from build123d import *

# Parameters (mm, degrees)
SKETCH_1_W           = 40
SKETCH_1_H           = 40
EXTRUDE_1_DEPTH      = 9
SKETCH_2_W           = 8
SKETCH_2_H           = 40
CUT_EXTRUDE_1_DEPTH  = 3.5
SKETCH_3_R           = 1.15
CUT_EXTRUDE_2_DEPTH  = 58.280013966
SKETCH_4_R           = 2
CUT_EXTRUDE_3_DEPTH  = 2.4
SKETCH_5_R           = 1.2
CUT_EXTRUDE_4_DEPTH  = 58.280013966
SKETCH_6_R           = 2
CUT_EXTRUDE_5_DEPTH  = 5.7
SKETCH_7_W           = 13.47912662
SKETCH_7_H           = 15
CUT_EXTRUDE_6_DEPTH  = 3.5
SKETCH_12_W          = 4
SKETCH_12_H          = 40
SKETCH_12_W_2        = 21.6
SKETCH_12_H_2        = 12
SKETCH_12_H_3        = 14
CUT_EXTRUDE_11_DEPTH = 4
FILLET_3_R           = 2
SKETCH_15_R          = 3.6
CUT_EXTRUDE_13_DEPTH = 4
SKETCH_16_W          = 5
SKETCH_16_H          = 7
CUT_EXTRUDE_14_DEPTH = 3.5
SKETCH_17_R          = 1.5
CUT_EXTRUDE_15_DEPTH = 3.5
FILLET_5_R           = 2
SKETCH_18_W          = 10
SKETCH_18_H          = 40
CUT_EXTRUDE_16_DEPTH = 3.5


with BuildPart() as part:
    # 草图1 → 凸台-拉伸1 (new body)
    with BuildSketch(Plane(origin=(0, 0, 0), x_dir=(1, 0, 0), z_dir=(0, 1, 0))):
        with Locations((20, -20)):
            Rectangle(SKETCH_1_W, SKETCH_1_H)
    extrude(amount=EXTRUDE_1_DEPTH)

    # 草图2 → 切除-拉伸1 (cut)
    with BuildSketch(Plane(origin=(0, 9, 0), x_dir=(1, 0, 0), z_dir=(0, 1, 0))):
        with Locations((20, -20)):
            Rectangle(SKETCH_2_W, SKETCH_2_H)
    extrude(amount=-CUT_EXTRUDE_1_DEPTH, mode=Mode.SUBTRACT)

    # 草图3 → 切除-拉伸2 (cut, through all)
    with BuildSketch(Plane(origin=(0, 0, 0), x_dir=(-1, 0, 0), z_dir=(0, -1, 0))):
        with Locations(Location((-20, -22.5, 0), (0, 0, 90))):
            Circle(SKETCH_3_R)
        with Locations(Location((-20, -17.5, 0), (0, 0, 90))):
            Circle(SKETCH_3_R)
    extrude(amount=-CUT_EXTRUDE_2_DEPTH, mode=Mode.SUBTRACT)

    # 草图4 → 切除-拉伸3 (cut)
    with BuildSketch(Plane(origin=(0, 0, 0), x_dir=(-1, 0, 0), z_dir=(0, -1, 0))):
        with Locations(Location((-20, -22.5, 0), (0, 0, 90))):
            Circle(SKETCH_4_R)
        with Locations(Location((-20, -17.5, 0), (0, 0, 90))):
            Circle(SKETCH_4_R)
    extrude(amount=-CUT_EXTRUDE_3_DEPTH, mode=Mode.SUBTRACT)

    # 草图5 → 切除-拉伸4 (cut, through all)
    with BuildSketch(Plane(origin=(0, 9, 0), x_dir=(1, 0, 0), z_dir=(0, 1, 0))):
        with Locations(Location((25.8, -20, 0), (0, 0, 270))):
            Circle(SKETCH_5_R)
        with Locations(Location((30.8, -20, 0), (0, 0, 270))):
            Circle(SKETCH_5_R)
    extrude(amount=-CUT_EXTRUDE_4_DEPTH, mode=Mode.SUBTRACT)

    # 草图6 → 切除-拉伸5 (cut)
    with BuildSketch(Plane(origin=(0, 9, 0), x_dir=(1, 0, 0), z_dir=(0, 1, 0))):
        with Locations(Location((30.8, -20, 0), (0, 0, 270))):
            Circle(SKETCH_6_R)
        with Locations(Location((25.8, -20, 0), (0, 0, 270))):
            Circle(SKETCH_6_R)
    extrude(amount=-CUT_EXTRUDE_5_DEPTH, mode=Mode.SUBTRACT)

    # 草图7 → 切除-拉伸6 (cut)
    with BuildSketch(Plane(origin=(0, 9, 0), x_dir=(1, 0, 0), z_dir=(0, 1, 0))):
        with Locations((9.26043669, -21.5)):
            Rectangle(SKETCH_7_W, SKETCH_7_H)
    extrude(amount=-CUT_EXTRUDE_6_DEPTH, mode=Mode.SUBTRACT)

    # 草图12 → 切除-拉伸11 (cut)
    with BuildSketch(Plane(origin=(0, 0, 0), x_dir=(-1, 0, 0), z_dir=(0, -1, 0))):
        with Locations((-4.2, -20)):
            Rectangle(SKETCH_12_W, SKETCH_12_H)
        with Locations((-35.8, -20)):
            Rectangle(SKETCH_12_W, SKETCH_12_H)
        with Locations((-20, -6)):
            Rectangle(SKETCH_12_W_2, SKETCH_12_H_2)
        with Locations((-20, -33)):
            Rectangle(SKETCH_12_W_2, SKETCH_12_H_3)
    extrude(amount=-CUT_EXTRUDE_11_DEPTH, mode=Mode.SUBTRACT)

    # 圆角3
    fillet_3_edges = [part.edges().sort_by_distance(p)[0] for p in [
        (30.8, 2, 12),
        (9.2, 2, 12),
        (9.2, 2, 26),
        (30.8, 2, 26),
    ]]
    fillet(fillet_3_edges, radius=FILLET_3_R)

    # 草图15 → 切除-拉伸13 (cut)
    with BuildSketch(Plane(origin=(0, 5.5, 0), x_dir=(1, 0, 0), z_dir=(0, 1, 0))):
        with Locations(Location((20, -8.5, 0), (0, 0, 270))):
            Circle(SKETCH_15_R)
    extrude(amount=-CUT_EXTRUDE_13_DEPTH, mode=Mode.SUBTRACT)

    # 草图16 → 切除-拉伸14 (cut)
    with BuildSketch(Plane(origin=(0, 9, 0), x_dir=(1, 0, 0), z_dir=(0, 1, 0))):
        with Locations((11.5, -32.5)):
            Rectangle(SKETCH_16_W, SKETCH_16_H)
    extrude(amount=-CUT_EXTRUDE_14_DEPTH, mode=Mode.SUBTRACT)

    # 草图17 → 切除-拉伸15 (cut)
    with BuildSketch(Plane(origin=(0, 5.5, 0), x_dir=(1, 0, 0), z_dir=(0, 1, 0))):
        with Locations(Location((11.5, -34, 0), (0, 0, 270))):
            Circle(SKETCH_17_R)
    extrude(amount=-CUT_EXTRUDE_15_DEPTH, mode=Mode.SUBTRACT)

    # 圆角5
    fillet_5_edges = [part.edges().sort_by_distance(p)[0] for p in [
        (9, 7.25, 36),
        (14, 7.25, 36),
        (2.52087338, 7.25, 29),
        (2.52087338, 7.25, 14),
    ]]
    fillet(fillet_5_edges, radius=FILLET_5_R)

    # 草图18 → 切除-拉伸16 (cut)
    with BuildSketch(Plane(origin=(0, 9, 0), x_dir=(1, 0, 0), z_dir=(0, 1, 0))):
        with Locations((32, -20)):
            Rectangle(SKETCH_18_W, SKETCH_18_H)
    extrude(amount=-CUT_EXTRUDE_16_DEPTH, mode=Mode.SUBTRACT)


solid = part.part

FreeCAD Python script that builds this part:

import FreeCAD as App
import Part
import Sketcher
Q = App.Units.Quantity


def edges_at(feature, points):
    """Names of the edges that pass closest to the given points."""
    edges = feature.Shape.Edges
    near = lambda p: min(range(len(edges)), key=lambda i: edges[i].distToShape(Part.Vertex(*p))[0])
    return sorted({f"Edge{near(p) + 1}" for p in points})


def add_polygon(sketch, points):
    """Adds a closed chain of lines whose ends are joined by coincident constraints."""
    first, n = sketch.GeometryCount, len(points)
    for a, b in zip(points, points[1:] + points[:1]):
        sketch.addGeometry(Part.LineSegment(App.Vector(*a, 0), App.Vector(*b, 0)), False)
    for i in range(n):
        sketch.addConstraint(Sketcher.Constraint("Coincident", first + i, 2, first + (i + 1) % n, 1))

doc = App.newDocument("Part")
body = doc.addObject("PartDesign::Body", "Body")

# Sketch on XZ plane
sketch1 = doc.addObject("Sketcher::SketchObject", "Sketch")
body.addObject(sketch1)
sketch1.AttachmentSupport = (doc.XZ_Plane, [""])
sketch1.MapMode = "FlatFace"
add_polygon(sketch1, [(0, 0), (0, 40), (40, 40), (40, 0)])  # lines 0-3
sketch1.addConstraint(Sketcher.Constraint("Vertical", 0))
sketch1.addConstraint(Sketcher.Constraint("Horizontal", 1))
sketch1.addConstraint(Sketcher.Constraint("Vertical", 2))
sketch1.addConstraint(Sketcher.Constraint("Horizontal", 3))
sketch1.addConstraint(Sketcher.Constraint("Coincident", 3, 2, -1, 1))
sketch1.addConstraint(Sketcher.Constraint("Equal", 3, 0))
sketch1.addConstraint(Sketcher.Constraint("DistanceX", 1, 1, 1, 2, Q("40 mm")))
pad1 = doc.addObject("PartDesign::Pad", "Pad")
body.addObject(pad1)
pad1.Profile = sketch1
pad1.Length = 9
pad1.Reversed = True

# Sketch on XZ plane
sketch2 = doc.addObject("Sketcher::SketchObject", "Sketch001")
body.addObject(sketch2)
sketch2.AttachmentSupport = (doc.XZ_Plane, [""])
sketch2.MapMode = "FlatFace"
sketch2.AttachmentOffset = App.Placement(App.Vector(0, 0, -9), App.Rotation())
add_polygon(sketch2, [(16, 0), (16, 40), (24, 40), (24, 0)])  # lines 0-3
sketch2.addConstraint(Sketcher.Constraint("Vertical", 0))
sketch2.addConstraint(Sketcher.Constraint("Horizontal", 1))
sketch2.addConstraint(Sketcher.Constraint("Vertical", 2))
sketch2.addConstraint(Sketcher.Constraint("Horizontal", 3))
sketch2.addConstraint(Sketcher.Constraint("PointOnObject", 2, 2, -1))
sketch2.addConstraint(Sketcher.Constraint("DistanceX", 1, 1, 1, 2, Q("8 mm")))
sketch2.addConstraint(Sketcher.Constraint("DistanceY", 0, 1, 0, 2, Q("40 mm")))
sketch2.addConstraint(Sketcher.Constraint("DistanceX", -1, 1, 0, 2, Q("16 mm")))
pocket1 = doc.addObject("PartDesign::Pocket", "Pocket")
body.addObject(pocket1)
pocket1.Profile = sketch2
pocket1.Length = 3.5
pocket1.Reversed = True

# Sketch on XZ plane
sketch3 = doc.addObject("Sketcher::SketchObject", "Sketch002")
body.addObject(sketch3)
sketch3.AttachmentSupport = (doc.XZ_Plane, [""])
sketch3.MapMode = "FlatFace"
sketch3.addGeometry(Part.Circle(App.Vector(20, 22.5, 0), App.Vector(0, 0, 1), 1.1), False)
sketch3.addGeometry(Part.Circle(App.Vector(20, 17.5, 0), App.Vector(0, 0, 1), 1.1), False)
sketch3.addConstraint(Sketcher.Constraint("Equal", 0, 1))
sketch3.addConstraint(Sketcher.Constraint("Vertical", 0, 3, 1, 3))
sketch3.addConstraint(Sketcher.Constraint("Diameter", 0, Q("2.3 mm")))
sketch3.addConstraint(Sketcher.Constraint("DistanceX", -1, 1, 0, 3, Q("20 mm")))
sketch3.addConstraint(Sketcher.Constraint("DistanceY", 1, 3, 0, 3, Q("5 mm")))
sketch3.addConstraint(Sketcher.Constraint("DistanceY", -1, 1, 0, 3, Q("22.5 mm")))
pocket2 = doc.addObject("PartDesign::Pocket", "Pocket001")
body.addObject(pocket2)
pocket2.Profile = sketch3
pocket2.Type = "ThroughAll"

# Sketch on XZ plane
sketch4 = doc.addObject("Sketcher::SketchObject", "Sketch003")
body.addObject(sketch4)
sketch4.AttachmentSupport = (doc.XZ_Plane, [""])
sketch4.MapMode = "FlatFace"
sketch4.addGeometry(Part.Circle(App.Vector(20, 22.5, 0), App.Vector(0, 0, 1), 2), False)
sketch4.addGeometry(Part.Circle(App.Vector(20, 17.5, 0), App.Vector(0, 0, 1), 2), False)
sketch4.addConstraint(Sketcher.Constraint("Equal", 0, 1))
sketch4.addConstraint(Sketcher.Constraint("Vertical", 0, 3, 1, 3))
sketch4.addConstraint(Sketcher.Constraint("Diameter", 0, Q("4 mm")))
sketch4.addConstraint(Sketcher.Constraint("DistanceX", -1, 1, 0, 3, Q("20 mm")))
sketch4.addConstraint(Sketcher.Constraint("DistanceY", 1, 3, 0, 3, Q("5 mm")))
sketch4.addConstraint(Sketcher.Constraint("DistanceY", -1, 1, 0, 3, Q("22.5 mm")))
pocket3 = doc.addObject("PartDesign::Pocket", "Pocket002")
body.addObject(pocket3)
pocket3.Profile = sketch4
pocket3.Length = 2.4

# Sketch on XZ plane
sketch5 = doc.addObject("Sketcher::SketchObject", "Sketch004")
body.addObject(sketch5)
sketch5.AttachmentSupport = (doc.XZ_Plane, [""])
sketch5.MapMode = "FlatFace"
sketch5.AttachmentOffset = App.Placement(App.Vector(0, 0, -9), App.Rotation())
sketch5.addGeometry(Part.Circle(App.Vector(25.8, 20, 0), App.Vector(0, 0, 1), 1.2), False)
sketch5.addGeometry(Part.Circle(App.Vector(30.8, 20, 0), App.Vector(0, 0, 1), 1.2), False)
sketch5.addConstraint(Sketcher.Constraint("Equal", 0, 1))
sketch5.addConstraint(Sketcher.Constraint("Horizontal", 0, 3, 1, 3))
sketch5.addConstraint(Sketcher.Constraint("Diameter", 0, Q("2.4 mm")))
sketch5.addConstraint(Sketcher.Constraint("DistanceY", -1, 1, 0, 3, Q("20 mm")))
sketch5.addConstraint(Sketcher.Constraint("DistanceX", 0, 3, 1, 3, Q("5 mm")))
sketch5.addConstraint(Sketcher.Constraint("DistanceX", -1, 1, 0, 3, Q("25.8 mm")))
pocket4 = doc.addObject("PartDesign::Pocket", "Pocket003")
body.addObject(pocket4)
pocket4.Profile = sketch5
pocket4.Type = "ThroughAll"
pocket4.Reversed = True

# Sketch on XZ plane
sketch6 = doc.addObject("Sketcher::SketchObject", "Sketch005")
body.addObject(sketch6)
sketch6.AttachmentSupport = (doc.XZ_Plane, [""])
sketch6.MapMode = "FlatFace"
sketch6.AttachmentOffset = App.Placement(App.Vector(0, 0, -9), App.Rotation())
sketch6.addGeometry(Part.Circle(App.Vector(30.8, 20, 0), App.Vector(0, 0, 1), 2), False)
sketch6.addGeometry(Part.Circle(App.Vector(25.8, 20, 0), App.Vector(0, 0, 1), 2), False)
sketch6.addConstraint(Sketcher.Constraint("Equal", 0, 1))
sketch6.addConstraint(Sketcher.Constraint("Horizontal", 0, 3, 1, 3))
sketch6.addConstraint(Sketcher.Constraint("Diameter", 0, Q("4 mm")))
sketch6.addConstraint(Sketcher.Constraint("DistanceY", -1, 1, 0, 3, Q("20 mm")))
sketch6.addConstraint(Sketcher.Constraint("DistanceX", 1, 3, 0, 3, Q("5 mm")))
sketch6.addConstraint(Sketcher.Constraint("DistanceX", -1, 1, 0, 3, Q("30.8 mm")))
pocket5 = doc.addObject("PartDesign::Pocket", "Pocket004")
body.addObject(pocket5)
pocket5.Profile = sketch6
pocket5.Length = 5.7
pocket5.Reversed = True

# Sketch on XZ plane
sketch7 = doc.addObject("Sketcher::SketchObject", "Sketch006")
body.addObject(sketch7)
sketch7.AttachmentSupport = (doc.XZ_Plane, [""])
sketch7.MapMode = "FlatFace"
sketch7.AttachmentOffset = App.Placement(App.Vector(0, 0, -9), App.Rotation())
add_polygon(sketch7, [(3, 14), (3, 29), (16, 29), (16, 14)])  # lines 0-3
sketch7.addConstraint(Sketcher.Constraint("Vertical", 0))
sketch7.addConstraint(Sketcher.Constraint("Horizontal", 1))
sketch7.addConstraint(Sketcher.Constraint("Vertical", 2))
sketch7.addConstraint(Sketcher.Constraint("Horizontal", 3))
sketch7.addConstraint(Sketcher.Constraint("DistanceY", 0, 1, 0, 2, Q("15 mm")))
sketch7.addConstraint(Sketcher.Constraint("DistanceY", -1, 1, 0, 2, Q("29 mm")))
sketch7.addConstraint(Sketcher.Constraint("DistanceX", -1, 1, 1, 2, Q("16 mm")))
sketch7.addConstraint(Sketcher.Constraint("DistanceX", 1, 1, 1, 2, Q("13.479127 mm")))
pocket6 = doc.addObject("PartDesign::Pocket", "Pocket005")
body.addObject(pocket6)
pocket6.Profile = sketch7
pocket6.Length = 3.5
pocket6.Reversed = True

# Sketch on XZ plane
sketch8 = doc.addObject("Sketcher::SketchObject", "Sketch007")
body.addObject(sketch8)
sketch8.AttachmentSupport = (doc.XZ_Plane, [""])
sketch8.MapMode = "FlatFace"
add_polygon(sketch8, [(6.2, 0), (6.2, 40), (2.2, 40), (2.2, 0)])  # lines 0-3
add_polygon(sketch8, [(37.8, 0), (37.8, 40), (33.8, 40), (33.8, 0)])  # lines 4-7
add_polygon(sketch8, [(30.8, 0), (30.8, 12), (9.2, 12), (9.2, 0)])  # lines 8-11
add_polygon(sketch8, [(30.8, 26), (30.8, 40), (9.2, 40), (9.2, 26)])  # lines 12-15
sketch8.addConstraint(Sketcher.Constraint("Vertical", 0))
sketch8.addConstraint(Sketcher.Constraint("Horizontal", 1))
sketch8.addConstraint(Sketcher.Constraint("Vertical", 2))
sketch8.addConstraint(Sketcher.Constraint("Horizontal", 3))
sketch8.addConstraint(Sketcher.Constraint("Vertical", 4))
sketch8.addConstraint(Sketcher.Constraint("Horizontal", 5))
sketch8.addConstraint(Sketcher.Constraint("Vertical", 6))
sketch8.addConstraint(Sketcher.Constraint("Horizontal", 7))
sketch8.addConstraint(Sketcher.Constraint("Vertical", 8))
sketch8.addConstraint(Sketcher.Constraint("Horizontal", 9))
sketch8.addConstraint(Sketcher.Constraint("Vertical", 10))
sketch8.addConstraint(Sketcher.Constraint("Horizontal", 11))
sketch8.addConstraint(Sketcher.Constraint("Vertical", 12))
sketch8.addConstraint(Sketcher.Constraint("Horizontal", 13))
sketch8.addConstraint(Sketcher.Constraint("Vertical", 14))
sketch8.addConstraint(Sketcher.Constraint("Horizontal", 15))
sketch8.addConstraint(Sketcher.Constraint("PointOnObject", 2, 2, -1))
sketch8.addConstraint(Sketcher.Constraint("PointOnObject", 6, 2, -1))
sketch8.addConstraint(Sketcher.Constraint("PointOnObject", 10, 2, -1))
sketch8.addConstraint(Sketcher.Constraint("Horizontal", 1, 2, 4, 2))
sketch8.addConstraint(Sketcher.Constraint("Horizontal", 5, 2, 12, 2))
sketch8.addConstraint(Sketcher.Constraint("Vertical", 11, 2, 12, 2))
sketch8.addConstraint(Sketcher.Constraint("Vertical", 10, 2, 13, 2))
sketch8.addConstraint(Sketcher.Constraint("Equal", 3, 5))
sketch8.addConstraint(Sketcher.Constraint("DistanceX", 1, 2, 1, 1, Q("4 mm")))
sketch8.addConstraint(Sketcher.Constraint("DistanceY", 0, 1, 0, 2, Q("40 mm")))
sketch8.addConstraint(Sketcher.Constraint("DistanceY", 8, 1, 8, 2, Q("12 mm")))
sketch8.addConstraint(Sketcher.Constraint("DistanceY", 12, 1, 12, 2, Q("14 mm")))
sketch8.addConstraint(Sketcher.Constraint("DistanceX", 9, 2, 9, 1, Q("21.6 mm")))
sketch8.addConstraint(Sketcher.Constraint("DistanceX", 8, 2, 6, 2, Q("3 mm")))
sketch8.addConstraint(Sketcher.Constraint("DistanceX", 3, 2, 9, 2, Q("3 mm")))
sketch8.addConstraint(Sketcher.Constraint("DistanceX", -1, 1, 0, 2, Q("6.2 mm")))
pocket7 = doc.addObject("PartDesign::Pocket", "Pocket006")
body.addObject(pocket7)
pocket7.Profile = sketch8
pocket7.Length = 4
doc.recompute()

fillet = doc.addObject("PartDesign::Fillet", "Fillet")
body.addObject(fillet)
fillet.Base = (pocket7, edges_at(pocket7, [
    (30.8, 2, 12),
    (9.2, 2, 12),
    (9.2, 2, 26),
    (30.8, 2, 26),
]))
fillet.Radius = 2

# Sketch on XZ plane
sketch9 = doc.addObject("Sketcher::SketchObject", "Sketch008")
body.addObject(sketch9)
sketch9.AttachmentSupport = (doc.XZ_Plane, [""])
sketch9.MapMode = "FlatFace"
sketch9.AttachmentOffset = App.Placement(App.Vector(0, 0, -5.5), App.Rotation())
sketch9.addGeometry(Part.Circle(App.Vector(20, 8.5, 0), App.Vector(0, 0, 1), 3.6), False)
sketch9.addConstraint(Sketcher.Constraint("Diameter", 0, Q("7.2 mm")))
sketch9.addConstraint(Sketcher.Constraint("DistanceX", -1, 1, 0, 3, Q("20 mm")))
sketch9.addConstraint(Sketcher.Constraint("DistanceY", -1, 1, 0, 3, Q("8.5 mm")))
pocket8 = doc.addObject("PartDesign::Pocket", "Pocket007")
body.addObject(pocket8)
pocket8.Profile = sketch9
pocket8.Length = 4
pocket8.Reversed = True

# Sketch on XZ plane
sketch10 = doc.addObject("Sketcher::SketchObject", "Sketch009")
body.addObject(sketch10)
sketch10.AttachmentSupport = (doc.XZ_Plane, [""])
sketch10.MapMode = "FlatFace"
sketch10.AttachmentOffset = App.Placement(App.Vector(0, 0, -9), App.Rotation())
add_polygon(sketch10, [(9, 29), (9, 36), (14, 36), (14, 29)])  # lines 0-3
sketch10.addConstraint(Sketcher.Constraint("Vertical", 0))
sketch10.addConstraint(Sketcher.Constraint("Horizontal", 1))
sketch10.addConstraint(Sketcher.Constraint("Vertical", 2))
sketch10.addConstraint(Sketcher.Constraint("Horizontal", 3))
sketch10.addConstraint(Sketcher.Constraint("DistanceX", 1, 1, 1, 2, Q("5 mm")))
sketch10.addConstraint(Sketcher.Constraint("DistanceY", 0, 1, 0, 2, Q("7 mm")))
sketch10.addConstraint(Sketcher.Constraint("DistanceX", -1, 1, 0, 2, Q("9 mm")))
sketch10.addConstraint(Sketcher.Constraint("DistanceY", -1, 1, 0, 2, Q("36 mm")))
pocket9 = doc.addObject("PartDesign::Pocket", "Pocket008")
body.addObject(pocket9)
pocket9.Profile = sketch10
pocket9.Length = 3.5
pocket9.Reversed = True

# Sketch on XZ plane
sketch11 = doc.addObject("Sketcher::SketchObject", "Sketch010")
body.addObject(sketch11)
sketch11.AttachmentSupport = (doc.XZ_Plane, [""])
sketch11.MapMode = "FlatFace"
sketch11.AttachmentOffset = App.Placement(App.Vector(0, 0, -5.5), App.Rotation())
sketch11.addGeometry(Part.Circle(App.Vector(11.5, 34, 0), App.Vector(0, 0, 1), 1.5), False)
sketch11.addConstraint(Sketcher.Constraint("Diameter", 0, Q("3 mm")))
sketch11.addConstraint(Sketcher.Constraint("DistanceY", -1, 1, 0, 3, Q("34 mm")))
sketch11.addConstraint(Sketcher.Constraint("DistanceX", -1, 1, 0, 3, Q("11.5 mm")))
pocket10 = doc.addObject("PartDesign::Pocket", "Pocket009")
body.addObject(pocket10)
pocket10.Profile = sketch11
pocket10.Length = 3.5
pocket10.Reversed = True
doc.recompute()

fillet2 = doc.addObject("PartDesign::Fillet", "Fillet001")
body.addObject(fillet2)
fillet2.Base = (pocket10, edges_at(pocket10, [
    (9, 7.25, 36),
    (14, 7.25, 36),
    (2.521, 7.25, 29),
    (2.521, 7.25, 14),
]))
fillet2.Radius = 2

# Sketch on XZ plane
sketch12 = doc.addObject("Sketcher::SketchObject", "Sketch011")
body.addObject(sketch12)
sketch12.AttachmentSupport = (doc.XZ_Plane, [""])
sketch12.MapMode = "FlatFace"
sketch12.AttachmentOffset = App.Placement(App.Vector(0, 0, -9), App.Rotation())
add_polygon(sketch12, [(27, 0), (27, 40), (37, 40), (37, 0)])  # lines 0-3
sketch12.addConstraint(Sketcher.Constraint("Vertical", 0))
sketch12.addConstraint(Sketcher.Constraint("Horizontal", 1))
sketch12.addConstraint(Sketcher.Constraint("Vertical", 2))
sketch12.addConstraint(Sketcher.Constraint("Horizontal", 3))
sketch12.addConstraint(Sketcher.Constraint("PointOnObject", 2, 2, -1))
sketch12.addConstraint(Sketcher.Constraint("DistanceX", 1, 1, 1, 2, Q("10 mm")))
sketch12.addConstraint(Sketcher.Constraint("DistanceY", 0, 1, 0, 2, Q("40 mm")))
sketch12.addConstraint(Sketcher.Constraint("DistanceX", -1, 1, 0, 2, Q("27 mm")))
pocket11 = doc.addObject("PartDesign::Pocket", "Pocket010")
body.addObject(pocket11)
pocket11.Profile = sketch12
pocket11.Length = 3.5
pocket11.Reversed = True

doc.recompute()
